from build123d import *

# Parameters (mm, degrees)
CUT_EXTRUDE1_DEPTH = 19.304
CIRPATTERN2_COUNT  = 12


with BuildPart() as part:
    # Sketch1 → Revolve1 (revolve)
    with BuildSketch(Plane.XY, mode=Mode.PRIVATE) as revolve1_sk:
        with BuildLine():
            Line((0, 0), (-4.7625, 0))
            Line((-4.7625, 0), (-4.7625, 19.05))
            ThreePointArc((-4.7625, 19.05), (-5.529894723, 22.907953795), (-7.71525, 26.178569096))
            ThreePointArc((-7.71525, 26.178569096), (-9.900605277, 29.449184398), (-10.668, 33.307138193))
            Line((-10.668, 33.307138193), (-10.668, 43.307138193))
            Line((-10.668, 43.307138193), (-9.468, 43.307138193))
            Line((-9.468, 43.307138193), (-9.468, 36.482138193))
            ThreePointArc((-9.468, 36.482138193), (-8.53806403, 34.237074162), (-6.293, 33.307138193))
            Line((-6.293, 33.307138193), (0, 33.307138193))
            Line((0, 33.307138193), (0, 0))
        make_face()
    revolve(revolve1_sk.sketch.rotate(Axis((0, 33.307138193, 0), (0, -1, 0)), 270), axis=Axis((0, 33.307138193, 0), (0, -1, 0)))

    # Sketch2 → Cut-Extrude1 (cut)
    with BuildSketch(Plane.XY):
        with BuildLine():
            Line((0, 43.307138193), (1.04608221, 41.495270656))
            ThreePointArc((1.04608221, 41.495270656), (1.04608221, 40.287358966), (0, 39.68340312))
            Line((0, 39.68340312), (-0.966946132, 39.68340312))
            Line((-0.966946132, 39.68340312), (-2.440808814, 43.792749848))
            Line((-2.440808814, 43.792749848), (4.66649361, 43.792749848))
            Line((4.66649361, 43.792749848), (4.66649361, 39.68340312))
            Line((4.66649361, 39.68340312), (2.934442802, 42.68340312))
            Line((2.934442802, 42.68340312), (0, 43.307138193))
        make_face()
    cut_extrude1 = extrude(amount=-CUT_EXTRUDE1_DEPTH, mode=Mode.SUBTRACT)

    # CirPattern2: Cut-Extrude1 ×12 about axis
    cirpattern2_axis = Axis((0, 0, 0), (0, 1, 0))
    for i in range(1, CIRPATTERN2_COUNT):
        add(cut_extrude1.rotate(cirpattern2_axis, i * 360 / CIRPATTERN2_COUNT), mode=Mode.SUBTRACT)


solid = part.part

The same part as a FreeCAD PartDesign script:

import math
import FreeCAD as App
import Part
import Sketcher
Q = App.Units.Quantity

doc = App.newDocument("Part")
params = doc.addObject("Spreadsheet::Sheet", "Params")
for row, (alias, value) in enumerate([
    ("sketch1_radius", "0.125 in"),
    ("sketch1_height", "0.75 in"),
    ("sketch1_width", "0.1875 in"),
    ("revolution_angle", "360 deg"),
    ("pocket1_length", "0.76 in"),
], start=1):
    params.set(f"A{row}", alias)
    params.set(f"B{row}", "=" + value)
    params.setAlias(f"B{row}", alias)

body = doc.addObject("PartDesign::Body", "Body")

sketch1 = body.newObject("Sketcher::SketchObject", "Sketch")
sketch1.AttachmentSupport = (doc.getObject("XY_Plane"), [""])
sketch1.MapMode = "FlatFace"
sketch1.addGeometry([
    Part.LineSegment(App.Vector(-4.7625, 0, 0), App.Vector(0, 0, 0)),
    Part.LineSegment(App.Vector(0, 0, 0), App.Vector(0, 33.307138, 0)),
    Part.LineSegment(App.Vector(0, 33.307138, 0), App.Vector(-6.293, 33.307138, 0)),
    Part.ArcOfCircle(Part.Circle(App.Vector(-6.293, 36.482138, 0), App.Vector(0, 0, 1), 3.175), math.radians(180), math.radians(270)),
    Part.LineSegment(App.Vector(-9.468, 36.482138, 0), App.Vector(-9.468, 43.307138, 0)),
    Part.LineSegment(App.Vector(-9.468, 43.307138, 0), App.Vector(-10.668, 43.307138, 0)),
    Part.LineSegment(App.Vector(-10.668, 43.307138, 0), App.Vector(-10.668, 33.307138, 0)),
    Part.ArcOfCircle(Part.Circle(App.Vector(-0.586681, 33.307138, 0), App.Vector(0, 0, 1), 10.081319), math.radians(-180), math.radians(-135)),
    Part.ArcOfCircle(Part.Circle(App.Vector(-14.843819, 19.05, 0), App.Vector(0, 0, 1), 10.081319), math.radians(0), math.radians(45)),
    Part.LineSegment(App.Vector(-4.7625, 19.05, 0), App.Vector(-4.7625, 0, 0)),
], False)
sketch1.addConstraint([
    Sketcher.Constraint("Coincident", 0, 2, 1, 1),
    Sketcher.Constraint("Coincident", 1, 2, 2, 1),
    Sketcher.Constraint("Tangent", 2, 2, 3, 2),
    Sketcher.Constraint("Tangent", 3, 1, 4, 1),
    Sketcher.Constraint("Coincident", 4, 2, 5, 1),
    Sketcher.Constraint("Coincident", 5, 2, 6, 1),
    Sketcher.Constraint("Tangent", 6, 2, 7, 1),
    Sketcher.Constraint("Tangent", 7, 2, 8, 2),
    Sketcher.Constraint("Tangent", 8, 1, 9, 1),
    Sketcher.Constraint("Coincident", 9, 2, 0, 1),
    Sketcher.Constraint("Horizontal", 0),
    Sketcher.Constraint("Vertical", 1),
    Sketcher.Constraint("Horizontal", 2),
    Sketcher.Constraint("Vertical", 4),
    Sketcher.Constraint("Horizontal", 5),
    Sketcher.Constraint("Vertical", 6),
    Sketcher.Constraint("Vertical", 9),
    Sketcher.Constraint("Coincident", 0, 2, -1, 1),
    Sketcher.Constraint("Equal", 7, 8),
    Sketcher.Constraint("Horizontal", 7, 3, 1, 2),
    Sketcher.Constraint("Radius", 3, Q("0.125 in")),
    Sketcher.Constraint("DistanceY", 9, 2, 9, 1, Q("0.75 in")),
    Sketcher.Constraint("DistanceX", 0, 1, 0, 2, Q("0.1875 in")),
    Sketcher.Constraint("DistanceX", 5, 2, -1, 1, Q("0.42 in")),
    Sketcher.Constraint("Radius", 7, Q("10.081319 mm")),
    Sketcher.Constraint("DistanceX", 2, 2, 2, 1, Q("6.293 mm")),
    Sketcher.Constraint("DistanceY", 4, 1, 4, 2, Q("6.825 mm")),
])
sketch1.setExpression("Constraints[20]", "Params.sketch1_radius")
sketch1.setExpression("Constraints[21]", "Params.sketch1_height")
sketch1.setExpression("Constraints[22]", "Params.sketch1_width")
revolution = body.newObject("PartDesign::Revolution", "Revolution")
revolution.Profile = sketch1
revolution.ReferenceAxis = (sketch1, ["V_Axis"])
revolution.setExpression("Angle", "Params.revolution_angle")

sketch2 = body.newObject("Sketcher::SketchObject", "Sketch001")
sketch2.AttachmentSupport = (doc.getObject("XY_Plane"), [""])
sketch2.MapMode = "FlatFace"
sketch2.addGeometry([
    Part.LineSegment(App.Vector(1.046082, 41.495271, 0), App.Vector(0, 43.307138, 0)),
    Part.LineSegment(App.Vector(0, 43.307138, 0), App.Vector(2.934443, 42.683403, 0)),
    Part.LineSegment(App.Vector(2.934443, 42.683403, 0), App.Vector(4.666494, 39.683403, 0)),
    Part.LineSegment(App.Vector(4.666494, 39.683403, 0), App.Vector(4.666494, 43.79275, 0)),
    Part.LineSegment(App.Vector(4.666494, 43.79275, 0), App.Vector(-2.440809, 43.79275, 0)),
    Part.LineSegment(App.Vector(-2.440809, 43.79275, 0), App.Vector(-0.966946, 39.683403, 0)),
    Part.LineSegment(App.Vector(-0.966946, 39.683403, 0), App.Vector(0, 39.683403, 0)),
    Part.ArcOfCircle(Part.Circle(App.Vector(0, 40.891315, 0), App.Vector(0, 0, 1), 1.207912), math.radians(-90), math.radians(30)),
], False)
sketch2.addConstraint([
    Sketcher.Constraint("Coincident", 0, 2, 1, 1),
    Sketcher.Constraint("Coincident", 1, 2, 2, 1),
    Sketcher.Constraint("Coincident", 2, 2, 3, 1),
    Sketcher.Constraint("Coincident", 3, 2, 4, 1),
    Sketcher.Constraint("Coincident", 4, 2, 5, 1),
    Sketcher.Constraint("Coincident", 5, 2, 6, 1),
    Sketcher.Constraint("Tangent", 6, 2, 7, 1),
    Sketcher.Constraint("Tangent", 7, 2, 0, 1),
    Sketcher.Constraint("Vertical", 3),
    Sketcher.Constraint("Horizontal", 4),
    Sketcher.Constraint("Horizontal", 6),
    Sketcher.Constraint("PointOnObject", 7, 3, -2),
    Sketcher.Constraint("PointOnObject", 0, 2, -2),
    Sketcher.Constraint("Parallel", 0, 2),
    Sketcher.Constraint("Horizontal", 2, 2, 5, 2),
    Sketcher.Constraint("Angle", 0, Q("120 deg")),
    Sketcher.Constraint("Angle", 1, Q("-12 deg")),
    Sketcher.Constraint("Radius", 7, Q("1.207912 mm")),
    Sketcher.Constraint("Distance", 1, Q("3 mm")),
    Sketcher.Constraint("Distance", 5, Q("4.365662 mm")),
    Sketcher.Constraint("DistanceX", 4, 2, 4, 1, Q("7.107302 mm")),
    Sketcher.Constraint("DistanceX", 6, 1, 6, 2, Q("0.966946 mm")),
    Sketcher.Constraint("DistanceY", -1, 1, 0, 2, Q("43.307138 mm")),
])
pocket1 = body.newObject("PartDesign::Pocket", "Pocket")
pocket1.Profile = sketch2
pocket1.setExpression("Length", "Params.pocket1_length")
doc.recompute()

polarpattern = body.newObject("PartDesign::PolarPattern", "PolarPattern")
polarpattern.Originals = [pocket1]
polarpattern.Axis = (doc.getObject("Y_Axis"), [""])
polarpattern.Angle = 360
polarpattern.Occurrences = 12
body.Tip = polarpattern

doc.recompute()
